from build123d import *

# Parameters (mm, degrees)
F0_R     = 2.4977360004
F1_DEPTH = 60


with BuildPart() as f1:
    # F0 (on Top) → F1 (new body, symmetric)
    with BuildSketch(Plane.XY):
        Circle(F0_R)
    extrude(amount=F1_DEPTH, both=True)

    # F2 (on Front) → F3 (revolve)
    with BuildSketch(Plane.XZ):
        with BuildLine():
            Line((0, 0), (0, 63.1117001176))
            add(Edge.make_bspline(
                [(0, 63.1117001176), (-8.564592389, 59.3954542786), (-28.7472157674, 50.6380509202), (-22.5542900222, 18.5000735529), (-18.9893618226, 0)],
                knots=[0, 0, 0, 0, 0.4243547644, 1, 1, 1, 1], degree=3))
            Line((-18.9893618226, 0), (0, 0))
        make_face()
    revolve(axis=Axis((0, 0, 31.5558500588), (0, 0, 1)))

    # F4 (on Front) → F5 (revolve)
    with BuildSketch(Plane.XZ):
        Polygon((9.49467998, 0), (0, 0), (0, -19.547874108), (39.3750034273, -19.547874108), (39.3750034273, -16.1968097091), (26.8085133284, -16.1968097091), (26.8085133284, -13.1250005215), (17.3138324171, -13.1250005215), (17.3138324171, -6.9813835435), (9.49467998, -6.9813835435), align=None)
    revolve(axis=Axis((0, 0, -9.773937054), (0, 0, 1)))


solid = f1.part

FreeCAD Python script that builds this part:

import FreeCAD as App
import Part
import Sketcher
from FreeCAD import Vector
Q = App.Units.Quantity


def add_polygon(sketch, points):
    """Adds a closed chain of lines whose ends are joined by coincident constraints."""
    first, n = sketch.GeometryCount, len(points)
    for a, b in zip(points, points[1:] + points[:1]):
        sketch.addGeometry(Part.LineSegment(App.Vector(*a, 0), App.Vector(*b, 0)), False)
    for i in range(n):
        sketch.addConstraint(Sketcher.Constraint("Coincident", first + i, 2, first + (i + 1) % n, 1))

doc = App.newDocument("Part")
params = doc.addObject("Spreadsheet::Sheet", "Params")
for row, (alias, value) in enumerate([
    ("pad1_length", "120 mm"),
    ("revolution_angle", "360 deg"),
    ("revolution2_angle", "360 deg"),
], start=1):
    params.set(f"A{row}", alias)
    params.set(f"B{row}", "=" + value)
    params.setAlias(f"B{row}", alias)

body = doc.addObject("PartDesign::Body", "Body")

sketch1 = doc.addObject("Sketcher::SketchObject", "Sketch")
body.addObject(sketch1)
sketch1.AttachmentSupport = (doc.XY_Plane, [""])
sketch1.MapMode = "FlatFace"
sketch1.addGeometry(Part.Circle(Vector(0, 0, 0), Vector(0, 0, 1), 2.497736), False)
sketch1.addConstraint([
    Sketcher.Constraint("Coincident", 0, 3, -1, 1),
    Sketcher.Constraint("Diameter", 0, Q("4.995472 mm")),
])
pad1 = doc.addObject("PartDesign::Pad", "Pad")
body.addObject(pad1)
pad1.Profile = sketch1
pad1.setExpression("Length", "Params.pad1_length")
pad1.Midplane = True

sketch2 = doc.addObject("Sketcher::SketchObject", "Sketch001")
body.addObject(sketch2)
sketch2.AttachmentSupport = (doc.XZ_Plane, [""])
sketch2.MapMode = "FlatFace"
sketch2.addGeometry([
    Part.LineSegment(Vector(0, 0, 0), Vector(0, 63.1117, 0)),
    Part.BSplineCurve([Vector(0, 63.1117, 0), Vector(-8.564592, 59.395454, 0), Vector(-28.747216, 50.638051, 0), Vector(-22.55429, 18.500074, 0), Vector(-18.989362, 0, 0)], [4, 1, 4], [0, 0.424354764, 1], False, 3, [1, 1, 1, 1, 1], False),
    Part.LineSegment(Vector(-18.989362, 0, 0), Vector(0, 0, 0)),
], False)
sketch2.addConstraint([
    Sketcher.Constraint("Block", 1),
    Sketcher.Constraint("Coincident", 0, 2, 1, 1),
    Sketcher.Constraint("Coincident", 1, 2, 2, 1),
    Sketcher.Constraint("Coincident", 2, 2, 0, 1),
    Sketcher.Constraint("Vertical", 0),
    Sketcher.Constraint("Horizontal", 2),
])
revolution = doc.addObject("PartDesign::Revolution", "Revolution")
body.addObject(revolution)
revolution.Profile = sketch2
revolution.ReferenceAxis = (sketch2, ["V_Axis"])
revolution.setExpression("Angle", "Params.revolution_angle")

sketch3 = doc.addObject("Sketcher::SketchObject", "Sketch002")
body.addObject(sketch3)
sketch3.AttachmentSupport = (doc.XZ_Plane, [""])
sketch3.MapMode = "FlatFace"
add_polygon(sketch3, [(9.49468, 0), (0, 0), (0, -19.547874), (39.375003, -19.547874), (39.375003, -16.19681), (26.808513, -16.19681), (26.808513, -13.125001), (17.313832, -13.125001), (17.313832, -6.981384), (9.49468, -6.981384)])
sketch3.addConstraint([
    Sketcher.Constraint("Horizontal", 0),
    Sketcher.Constraint("Vertical", 1),
    Sketcher.Constraint("Horizontal", 2),
    Sketcher.Constraint("Vertical", 3),
    Sketcher.Constraint("Horizontal", 4),
    Sketcher.Constraint("Vertical", 5),
    Sketcher.Constraint("Horizontal", 6),
    Sketcher.Constraint("Vertical", 7),
    Sketcher.Constraint("Horizontal", 8),
    Sketcher.Constraint("Vertical", 9),
    Sketcher.Constraint("Coincident", 0, 2, -1, 1),
    Sketcher.Constraint("Equal", 0, 6),
    Sketcher.Constraint("DistanceY", 5, 2, -1, 1, Q("13.125001 mm")),
    Sketcher.Constraint("DistanceX", 0, 2, 0, 1, Q("9.49468 mm")),
    Sketcher.Constraint("DistanceX", 4, 2, 4, 1, Q("12.56649 mm")),
    Sketcher.Constraint("DistanceY", 5, 1, 5, 2, Q("3.071809 mm")),
    Sketcher.Constraint("DistanceX", 2, 1, 2, 2, Q("39.375003 mm")),
    Sketcher.Constraint("DistanceY", 1, 2, 1, 1, Q("19.547874 mm")),
    Sketcher.Constraint("DistanceY", 7, 1, 7, 2, Q("6.143617 mm")),
])
revolution2 = doc.addObject("PartDesign::Revolution", "Revolution001")
body.addObject(revolution2)
revolution2.Profile = sketch3
revolution2.ReferenceAxis = (sketch3, ["V_Axis"])
revolution2.setExpression("Angle", "Params.revolution2_angle")

doc.recompute()
